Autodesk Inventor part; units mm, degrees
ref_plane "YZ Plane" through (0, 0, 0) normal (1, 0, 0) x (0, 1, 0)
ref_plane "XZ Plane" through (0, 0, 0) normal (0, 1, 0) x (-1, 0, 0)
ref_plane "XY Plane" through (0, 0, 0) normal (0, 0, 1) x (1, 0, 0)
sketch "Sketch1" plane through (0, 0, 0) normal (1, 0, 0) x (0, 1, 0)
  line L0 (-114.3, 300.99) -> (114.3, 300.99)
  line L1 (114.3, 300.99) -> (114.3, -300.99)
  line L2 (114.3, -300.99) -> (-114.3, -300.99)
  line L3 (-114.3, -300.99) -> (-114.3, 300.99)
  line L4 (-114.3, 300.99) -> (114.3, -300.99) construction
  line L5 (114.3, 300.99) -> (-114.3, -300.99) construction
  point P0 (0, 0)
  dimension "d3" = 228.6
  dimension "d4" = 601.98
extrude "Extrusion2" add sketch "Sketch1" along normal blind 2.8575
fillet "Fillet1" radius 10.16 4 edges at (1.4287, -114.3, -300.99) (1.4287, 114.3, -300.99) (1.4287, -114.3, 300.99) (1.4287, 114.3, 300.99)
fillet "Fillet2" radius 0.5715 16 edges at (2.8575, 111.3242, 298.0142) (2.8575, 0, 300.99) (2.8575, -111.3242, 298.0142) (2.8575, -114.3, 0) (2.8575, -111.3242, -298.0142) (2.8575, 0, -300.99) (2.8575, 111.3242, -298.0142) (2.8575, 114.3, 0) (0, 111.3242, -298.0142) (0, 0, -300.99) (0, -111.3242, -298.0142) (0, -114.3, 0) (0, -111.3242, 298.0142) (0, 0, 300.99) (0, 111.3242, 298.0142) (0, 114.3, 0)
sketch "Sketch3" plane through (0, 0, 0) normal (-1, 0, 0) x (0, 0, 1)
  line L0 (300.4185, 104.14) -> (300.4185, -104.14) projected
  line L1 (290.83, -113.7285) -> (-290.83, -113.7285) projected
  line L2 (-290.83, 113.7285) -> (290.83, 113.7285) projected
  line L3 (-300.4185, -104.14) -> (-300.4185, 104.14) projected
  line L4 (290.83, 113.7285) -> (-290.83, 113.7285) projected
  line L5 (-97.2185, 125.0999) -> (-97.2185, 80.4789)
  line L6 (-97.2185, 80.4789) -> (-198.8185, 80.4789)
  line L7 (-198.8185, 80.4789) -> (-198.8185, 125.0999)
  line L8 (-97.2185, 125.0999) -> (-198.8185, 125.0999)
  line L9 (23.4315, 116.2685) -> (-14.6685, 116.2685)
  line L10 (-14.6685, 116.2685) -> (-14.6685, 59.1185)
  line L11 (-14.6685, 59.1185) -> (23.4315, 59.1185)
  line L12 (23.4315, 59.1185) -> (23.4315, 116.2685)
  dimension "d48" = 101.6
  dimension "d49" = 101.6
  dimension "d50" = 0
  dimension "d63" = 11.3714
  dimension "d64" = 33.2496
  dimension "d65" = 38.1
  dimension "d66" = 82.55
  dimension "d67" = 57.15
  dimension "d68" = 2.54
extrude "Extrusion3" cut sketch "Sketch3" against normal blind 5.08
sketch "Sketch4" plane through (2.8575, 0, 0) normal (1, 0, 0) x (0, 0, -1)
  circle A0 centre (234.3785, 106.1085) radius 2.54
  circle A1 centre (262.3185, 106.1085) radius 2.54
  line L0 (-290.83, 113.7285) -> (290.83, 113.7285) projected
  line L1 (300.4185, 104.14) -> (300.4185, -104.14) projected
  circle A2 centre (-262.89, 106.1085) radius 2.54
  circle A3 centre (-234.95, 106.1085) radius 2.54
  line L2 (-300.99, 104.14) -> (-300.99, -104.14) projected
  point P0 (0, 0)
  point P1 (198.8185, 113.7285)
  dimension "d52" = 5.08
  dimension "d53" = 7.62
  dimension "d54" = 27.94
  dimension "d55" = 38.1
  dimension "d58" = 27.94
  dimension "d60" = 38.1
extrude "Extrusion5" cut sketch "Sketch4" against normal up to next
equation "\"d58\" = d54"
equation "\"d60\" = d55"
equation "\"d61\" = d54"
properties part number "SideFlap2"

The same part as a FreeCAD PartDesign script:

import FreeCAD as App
import Part
import Sketcher
from FreeCAD import Vector
Q = App.Units.Quantity


def edges_at(feature, points):
    """Names of the edges that pass closest to the given points."""
    edges = feature.Shape.Edges
    near = lambda p: min(range(len(edges)), key=lambda i: edges[i].distToShape(Part.Vertex(*p))[0])
    return sorted({f"Edge{near(p) + 1}" for p in points})


def add_polygon(sketch, points):
    """Adds a closed chain of lines whose ends are joined by coincident constraints."""
    first, n = sketch.GeometryCount, len(points)
    for a, b in zip(points, points[1:] + points[:1]):
        sketch.addGeometry(Part.LineSegment(App.Vector(*a, 0), App.Vector(*b, 0)), False)
    for i in range(n):
        sketch.addConstraint(Sketcher.Constraint("Coincident", first + i, 2, first + (i + 1) % n, 1))

doc = App.newDocument("Part")
body = doc.addObject("PartDesign::Body", "Body")

sketch1 = doc.addObject("Sketcher::SketchObject", "Sketch")
body.addObject(sketch1)
sketch1.AttachmentSupport = (doc.YZ_Plane, [""])
sketch1.MapMode = "FlatFace"
add_polygon(sketch1, [(114, 301), (-114, 301), (-114, -301), (114, -301)])
sketch1.addConstraint(Sketcher.Constraint("Horizontal", 0))
sketch1.addConstraint(Sketcher.Constraint("Vertical", 1))
sketch1.addConstraint(Sketcher.Constraint("Horizontal", 2))
sketch1.addConstraint(Sketcher.Constraint("Vertical", 3))
sketch1.addConstraint(Sketcher.Constraint("Symmetric", 0, 2, 2, 2, -1, 1))
sketch1.addConstraint(Sketcher.Constraint("DistanceX", 0, 2, 0, 1, Q("9 in")))
sketch1.addConstraint(Sketcher.Constraint("DistanceY", 1, 2, 1, 1, Q("23.7 in")))
pad1 = doc.addObject("PartDesign::Pad", "Pad")
body.addObject(pad1)
pad1.Profile = sketch1
pad1.Length = Q("0.1125 in")
doc.recompute()

fillet = doc.addObject("PartDesign::Fillet", "Fillet")
body.addObject(fillet)
fillet.Base = (pad1, edges_at(pad1, [
    (1.429, -114.3, -300.99),
    (1.429, 114.3, -300.99),
    (1.429, -114.3, 300.99),
    (1.429, 114.3, 300.99),
]))
fillet.Radius = Q("0.4 in")
doc.recompute()

fillet2 = doc.addObject("PartDesign::Fillet", "Fillet001")
body.addObject(fillet2)
fillet2.Base = (fillet, edges_at(fillet, [
    (2.857, 111.324, 298.014),
    (2.857, 0, 300.99),
    (2.857, -111.324, 298.014),
    (2.857, -114.3, 0),
    (2.857, -111.324, -298.014),
    (2.857, 0, -300.99),
    (2.857, 111.324, -298.014),
    (2.857, 114.3, 0),
    (0, 111.324, -298.014),
    (0, 0, -300.99),
    (0, -111.324, -298.014),
    (0, -114.3, 0),
    (0, -111.324, 298.014),
    (0, 0, 300.99),
    (0, 111.324, 298.014),
    (0, 114.3, 0),
]))
fillet2.Radius = Q("0.0225 in")

sketch2 = doc.addObject("Sketcher::SketchObject", "Sketch001")
body.addObject(sketch2)
sketch2.AttachmentSupport = (doc.YZ_Plane, [""])
sketch2.MapMode = "FlatFace"
add_polygon(sketch2, [(125, -199), (80, -199), (80, -97), (125, -97)])
add_polygon(sketch2, [(116, -15), (59, -15), (59, 23), (116, 23)])
sketch2.addConstraint(Sketcher.Constraint("Horizontal", 0))
sketch2.addConstraint(Sketcher.Constraint("Vertical", 1))
sketch2.addConstraint(Sketcher.Constraint("Horizontal", 2))
sketch2.addConstraint(Sketcher.Constraint("Vertical", 3))
sketch2.addConstraint(Sketcher.Constraint("Horizontal", 4))
sketch2.addConstraint(Sketcher.Constraint("Vertical", 5))
sketch2.addConstraint(Sketcher.Constraint("Horizontal", 6))
sketch2.addConstraint(Sketcher.Constraint("Vertical", 7))
sketch2.addConstraint(Sketcher.Constraint("DistanceY", 1, 1, 1, 2, Q("4 in")))
sketch2.addConstraint(Sketcher.Constraint("DistanceY", 5, 1, 5, 2, Q("1.5 in")))
sketch2.addConstraint(Sketcher.Constraint("DistanceX", 4, 2, 4, 1, Q("2.25 in")))
sketch2.addConstraint(Sketcher.Constraint("DistanceY", 1, 2, 4, 2, Q("3.25 in")))
sketch2.addConstraint(Sketcher.Constraint("DistanceX", 0, 2, 0, 1, Q("44.621 mm")))
sketch2.addConstraint(Sketcher.Constraint("DistanceY", 0, 2, -1, 1, Q("7.8275 in")))
sketch2.addConstraint(Sketcher.Constraint("DistanceX", -1, 1, 2, 2, Q("4.9252 in")))
sketch2.addConstraint(Sketcher.Constraint("DistanceX", -1, 1, 4, 2, Q("2.3275 in")))
pocket1 = doc.addObject("PartDesign::Pocket", "Pocket")
body.addObject(pocket1)
pocket1.Profile = sketch2
pocket1.Length = Q("0.2 in")
pocket1.Reversed = True

sketch3 = doc.addObject("Sketcher::SketchObject", "Sketch002")
body.addObject(sketch3)
sketch3.AttachmentSupport = (doc.YZ_Plane, [""])
sketch3.MapMode = "FlatFace"
sketch3.AttachmentOffset = App.Placement(Vector(0, 0, 0.1125 * 25.4), App.Rotation())
sketch3.addGeometry(Part.Circle(Vector(106.1, -234.4, 0), Vector(0, 0, 1), 2.5), False)
sketch3.addGeometry(Part.Circle(Vector(106.1, -262.3, 0), Vector(0, 0, 1), 2.5), False)
sketch3.addGeometry(Part.Circle(Vector(106.1, 262.9, 0), Vector(0, 0, 1), 2.5), False)
sketch3.addGeometry(Part.Circle(Vector(106.1, 234.9, 0), Vector(0, 0, 1), 2.5), False)
sketch3.addConstraint(Sketcher.Constraint("Equal", 0, 1))
sketch3.addConstraint(Sketcher.Constraint("Equal", 1, 2))
sketch3.addConstraint(Sketcher.Constraint("Equal", 2, 3))
sketch3.addConstraint(Sketcher.Constraint("Vertical", 0, 3, 1, 3))
sketch3.addConstraint(Sketcher.Constraint("Vertical", 1, 3, 2, 3))
sketch3.addConstraint(Sketcher.Constraint("Vertical", 2, 3, 3, 3))
sketch3.addConstraint(Sketcher.Constraint("Diameter", 0, Q("0.2 in")))
sketch3.addConstraint(Sketcher.Constraint("DistanceY", 1, 3, 0, 3, Q("1.1 in")))
sketch3.addConstraint(Sketcher.Constraint("DistanceY", 3, 3, 2, 3, Q("1.1 in")))
sketch3.addConstraint(Sketcher.Constraint("DistanceY", -1, 1, 2, 3, Q("10.35 in")))
sketch3.addConstraint(Sketcher.Constraint("DistanceX", -1, 1, 0, 3, Q("4.1775 in")))
sketch3.addConstraint(Sketcher.Constraint("DistanceY", 0, 3, -1, 1, Q("9.2275 in")))
pocket2 = doc.addObject("PartDesign::Pocket", "Pocket001")
body.addObject(pocket2)
pocket2.Profile = sketch3
pocket2.Length = Q("0.1125 in")

doc.recompute()
